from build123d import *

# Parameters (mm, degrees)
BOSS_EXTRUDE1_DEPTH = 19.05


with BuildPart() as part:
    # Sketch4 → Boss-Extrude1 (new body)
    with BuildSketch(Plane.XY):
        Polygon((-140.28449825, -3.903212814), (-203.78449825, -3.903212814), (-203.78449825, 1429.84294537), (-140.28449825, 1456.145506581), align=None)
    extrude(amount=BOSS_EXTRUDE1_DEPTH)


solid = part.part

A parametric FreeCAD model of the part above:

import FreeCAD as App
import Part
import Sketcher
from FreeCAD import Vector
Q = App.Units.Quantity


def add_polygon(sketch, points):
    """Adds a closed chain of lines whose ends are joined by coincident constraints."""
    first, n = sketch.GeometryCount, len(points)
    for a, b in zip(points, points[1:] + points[:1]):
        sketch.addGeometry(Part.LineSegment(App.Vector(*a, 0), App.Vector(*b, 0)), False)
    for i in range(n):
        sketch.addConstraint(Sketcher.Constraint("Coincident", first + i, 2, first + (i + 1) % n, 1))

doc = App.newDocument("Part")
body = doc.addObject("PartDesign::Body", "Body")

sketch1 = body.newObject("Sketcher::SketchObject", "Sketch")
sketch1.AttachmentSupport = (doc.getObject("XY_Plane"), [""])
sketch1.MapMode = "FlatFace"
add_polygon(sketch1, [(-204, -4), (-140, -4), (-140, 1456), (-204, 1430)])
sketch1.addConstraint([
    Sketcher.Constraint("Horizontal", 0),
    Sketcher.Constraint("Vertical", 1),
    Sketcher.Constraint("Vertical", 3),
    Sketcher.Constraint("DistanceX", 0, 1, 0, 2, Q("2.5 in")),
    Sketcher.Constraint("Angle", 2, Q("-157.5 deg")),
    Sketcher.Constraint("DistanceY", 1, 1, 1, 2, 1460.048719),
    Sketcher.Constraint("DistanceX", 0, 2, -1, 1, 140.284498),
    Sketcher.Constraint("DistanceY", 0, 2, -1, 1, 3.903213),
])
pad1 = body.newObject("PartDesign::Pad", "Pad")
pad1.Profile = sketch1
pad1.Length = Q("0.75 in")

doc.recompute()
